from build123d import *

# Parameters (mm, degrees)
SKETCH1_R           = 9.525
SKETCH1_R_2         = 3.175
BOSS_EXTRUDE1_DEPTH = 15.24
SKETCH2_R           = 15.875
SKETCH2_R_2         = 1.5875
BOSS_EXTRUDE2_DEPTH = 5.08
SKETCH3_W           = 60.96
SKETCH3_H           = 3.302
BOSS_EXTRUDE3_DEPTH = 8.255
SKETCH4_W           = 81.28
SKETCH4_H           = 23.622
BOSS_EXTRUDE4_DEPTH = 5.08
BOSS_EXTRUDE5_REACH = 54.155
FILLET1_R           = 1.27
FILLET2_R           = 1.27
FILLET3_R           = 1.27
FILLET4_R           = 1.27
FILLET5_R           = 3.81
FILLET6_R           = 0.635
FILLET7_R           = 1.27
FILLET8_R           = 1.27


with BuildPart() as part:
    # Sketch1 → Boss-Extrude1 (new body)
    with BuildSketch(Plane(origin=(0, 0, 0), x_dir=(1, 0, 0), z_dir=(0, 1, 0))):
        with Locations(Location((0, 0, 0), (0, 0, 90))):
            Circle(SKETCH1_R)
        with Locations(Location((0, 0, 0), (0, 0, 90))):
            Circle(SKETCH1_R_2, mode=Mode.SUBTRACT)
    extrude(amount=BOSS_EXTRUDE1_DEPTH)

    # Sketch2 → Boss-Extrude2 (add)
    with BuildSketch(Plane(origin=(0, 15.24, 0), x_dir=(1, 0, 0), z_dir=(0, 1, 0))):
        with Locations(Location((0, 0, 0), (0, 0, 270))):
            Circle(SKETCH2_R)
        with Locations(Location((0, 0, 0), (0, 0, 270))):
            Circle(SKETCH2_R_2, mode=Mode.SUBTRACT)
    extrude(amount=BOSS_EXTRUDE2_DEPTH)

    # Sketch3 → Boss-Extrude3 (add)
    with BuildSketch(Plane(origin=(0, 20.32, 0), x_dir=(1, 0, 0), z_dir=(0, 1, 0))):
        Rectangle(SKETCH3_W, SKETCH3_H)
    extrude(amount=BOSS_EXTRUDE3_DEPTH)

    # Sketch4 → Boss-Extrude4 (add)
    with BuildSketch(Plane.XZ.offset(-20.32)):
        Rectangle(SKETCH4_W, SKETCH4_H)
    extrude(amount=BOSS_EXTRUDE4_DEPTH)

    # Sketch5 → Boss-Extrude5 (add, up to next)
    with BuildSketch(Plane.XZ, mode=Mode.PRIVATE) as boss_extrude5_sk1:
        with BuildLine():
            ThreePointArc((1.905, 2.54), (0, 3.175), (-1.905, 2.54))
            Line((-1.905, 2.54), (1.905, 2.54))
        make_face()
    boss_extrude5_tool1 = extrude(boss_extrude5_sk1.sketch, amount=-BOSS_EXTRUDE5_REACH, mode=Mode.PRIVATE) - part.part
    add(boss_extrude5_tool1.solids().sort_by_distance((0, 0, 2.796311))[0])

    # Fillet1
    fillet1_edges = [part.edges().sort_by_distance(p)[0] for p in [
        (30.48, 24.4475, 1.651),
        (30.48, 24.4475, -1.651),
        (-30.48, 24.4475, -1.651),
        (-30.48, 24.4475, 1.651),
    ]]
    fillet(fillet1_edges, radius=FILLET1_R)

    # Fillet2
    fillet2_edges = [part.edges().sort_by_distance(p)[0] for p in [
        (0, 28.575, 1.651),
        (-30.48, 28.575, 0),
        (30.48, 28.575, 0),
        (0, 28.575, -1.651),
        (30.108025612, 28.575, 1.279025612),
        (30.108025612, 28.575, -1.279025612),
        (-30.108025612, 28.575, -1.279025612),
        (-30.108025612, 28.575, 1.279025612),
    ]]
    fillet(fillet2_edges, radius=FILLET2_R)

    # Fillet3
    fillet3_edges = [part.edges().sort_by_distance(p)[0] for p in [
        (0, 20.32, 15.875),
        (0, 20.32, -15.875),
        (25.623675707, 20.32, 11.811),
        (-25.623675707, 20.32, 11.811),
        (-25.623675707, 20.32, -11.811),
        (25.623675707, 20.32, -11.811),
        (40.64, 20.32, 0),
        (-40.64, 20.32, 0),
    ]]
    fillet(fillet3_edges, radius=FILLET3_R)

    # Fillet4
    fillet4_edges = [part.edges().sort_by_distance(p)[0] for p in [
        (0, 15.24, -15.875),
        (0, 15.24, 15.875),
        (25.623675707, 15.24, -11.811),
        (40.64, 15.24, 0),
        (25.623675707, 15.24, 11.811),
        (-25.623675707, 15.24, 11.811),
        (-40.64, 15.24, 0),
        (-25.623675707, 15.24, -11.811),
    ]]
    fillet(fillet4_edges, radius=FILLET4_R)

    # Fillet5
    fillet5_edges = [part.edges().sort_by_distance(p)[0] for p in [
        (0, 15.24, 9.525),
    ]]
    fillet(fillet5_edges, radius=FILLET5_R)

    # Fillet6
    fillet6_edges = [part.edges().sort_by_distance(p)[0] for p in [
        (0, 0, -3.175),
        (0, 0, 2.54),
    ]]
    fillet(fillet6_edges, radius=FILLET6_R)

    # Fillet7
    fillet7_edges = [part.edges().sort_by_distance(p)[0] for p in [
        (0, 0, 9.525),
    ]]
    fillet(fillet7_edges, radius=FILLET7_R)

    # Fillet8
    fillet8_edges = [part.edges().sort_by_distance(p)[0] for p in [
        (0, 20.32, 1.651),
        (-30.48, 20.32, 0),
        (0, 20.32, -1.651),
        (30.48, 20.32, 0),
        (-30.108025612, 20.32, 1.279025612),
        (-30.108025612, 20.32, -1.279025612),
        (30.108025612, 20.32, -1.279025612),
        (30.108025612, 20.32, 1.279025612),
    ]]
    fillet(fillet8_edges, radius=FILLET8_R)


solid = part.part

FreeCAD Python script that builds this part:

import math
import FreeCAD as App
import Part
import Sketcher
from FreeCAD import Vector
Q = App.Units.Quantity


def edges_at(feature, points):
    """Names of the edges that pass closest to the given points."""
    edges = feature.Shape.Edges
    near = lambda p: min(range(len(edges)), key=lambda i: edges[i].distToShape(Part.Vertex(*p))[0])
    return sorted({f"Edge{near(p) + 1}" for p in points})


def add_polygon(sketch, points):
    """Adds a closed chain of lines whose ends are joined by coincident constraints."""
    first, n = sketch.GeometryCount, len(points)
    for a, b in zip(points, points[1:] + points[:1]):
        sketch.addGeometry(Part.LineSegment(App.Vector(*a, 0), App.Vector(*b, 0)), False)
    for i in range(n):
        sketch.addConstraint(Sketcher.Constraint("Coincident", first + i, 2, first + (i + 1) % n, 1))

doc = App.newDocument("Part")
body = doc.addObject("PartDesign::Body", "Body")

# Sketch on XZ plane
sketch1 = doc.addObject("Sketcher::SketchObject", "Sketch")
body.addObject(sketch1)
sketch1.AttachmentSupport = (doc.XZ_Plane, [""])
sketch1.MapMode = "FlatFace"
sketch1.addGeometry([
    Part.Circle(Vector(0, 0, 0), Vector(0, 0, 1), 9.525),
    Part.Circle(Vector(0, 0, 0), Vector(0, 0, 1), 3.175),
], False)
sketch1.addConstraint([
    Sketcher.Constraint("Coincident", 0, 3, -1, 1),
    Sketcher.Constraint("Coincident", 1, 3, -1, 1),
    Sketcher.Constraint("Diameter", 0, Q("0.75 in")),
    Sketcher.Constraint("Diameter", 1, Q("0.25 in")),
])
pad1 = doc.addObject("PartDesign::Pad", "Pad")
body.addObject(pad1)
pad1.Profile = sketch1
pad1.Length = Q("0.6 in")
pad1.Reversed = True

# Sketch on XZ plane
sketch2 = doc.addObject("Sketcher::SketchObject", "Sketch001")
body.addObject(sketch2)
sketch2.AttachmentSupport = (doc.XZ_Plane, [""])
sketch2.MapMode = "FlatFace"
sketch2.AttachmentOffset = App.Placement(Vector(0, 0, -0.6 * 25.4), App.Rotation())
sketch2.addGeometry([
    Part.Circle(Vector(0, 0, 0), Vector(0, 0, 1), 15.875),
    Part.Circle(Vector(0, 0, 0), Vector(0, 0, 1), 1.5875),
], False)
sketch2.addConstraint([
    Sketcher.Constraint("Coincident", 0, 3, -1, 1),
    Sketcher.Constraint("Coincident", 1, 3, -1, 1),
    Sketcher.Constraint("Diameter", 0, Q("1.25 in")),
    Sketcher.Constraint("Diameter", 1, Q("0.125 in")),
])
pad2 = doc.addObject("PartDesign::Pad", "Pad001")
body.addObject(pad2)
pad2.Profile = sketch2
pad2.Length = Q("0.2 in")
pad2.Reversed = True

# Sketch on XZ plane
sketch3 = doc.addObject("Sketcher::SketchObject", "Sketch002")
body.addObject(sketch3)
sketch3.AttachmentSupport = (doc.XZ_Plane, [""])
sketch3.MapMode = "FlatFace"
sketch3.AttachmentOffset = App.Placement(Vector(0, 0, -0.8 * 25.4), App.Rotation())
add_polygon(sketch3, [(-30.48, -1.651), (-30.48, 1.651), (30.48, 1.651), (30.48, -1.651)])  # lines 0-3
sketch3.addConstraint([
    Sketcher.Constraint("Vertical", 0),
    Sketcher.Constraint("Horizontal", 1),
    Sketcher.Constraint("Vertical", 2),
    Sketcher.Constraint("Horizontal", 3),
    Sketcher.Constraint("Symmetric", 0, 2, 2, 2, -1, 1),
    Sketcher.Constraint("DistanceX", 1, 1, 1, 2, Q("2.4 in")),
    Sketcher.Constraint("DistanceY", 0, 1, 0, 2, Q("0.13 in")),
])
pad3 = doc.addObject("PartDesign::Pad", "Pad002")
body.addObject(pad3)
pad3.Profile = sketch3
pad3.Length = Q("0.325 in")
pad3.Reversed = True

# Sketch on XZ plane
sketch4 = doc.addObject("Sketcher::SketchObject", "Sketch003")
body.addObject(sketch4)
sketch4.AttachmentSupport = (doc.XZ_Plane, [""])
sketch4.MapMode = "FlatFace"
sketch4.AttachmentOffset = App.Placement(Vector(0, 0, -0.8 * 25.4), App.Rotation())
add_polygon(sketch4, [(-40.64, 11.811), (-40.64, -11.811), (40.64, -11.811), (40.64, 11.811)])  # lines 0-3
sketch4.addConstraint([
    Sketcher.Constraint("Vertical", 0),
    Sketcher.Constraint("Horizontal", 1),
    Sketcher.Constraint("Vertical", 2),
    Sketcher.Constraint("Horizontal", 3),
    Sketcher.Constraint("Symmetric", 0, 2, 2, 2, -1, 1),
    Sketcher.Constraint("DistanceX", 1, 1, 1, 2, Q("3.2 in")),
    Sketcher.Constraint("DistanceY", 0, 2, 0, 1, Q("0.93 in")),
])
pad4 = doc.addObject("PartDesign::Pad", "Pad003")
body.addObject(pad4)
pad4.Profile = sketch4
pad4.Length = Q("0.2 in")

# Sketch on XZ plane
sketch5 = doc.addObject("Sketcher::SketchObject", "Sketch004")
body.addObject(sketch5)
sketch5.AttachmentSupport = (doc.XZ_Plane, [""])
sketch5.MapMode = "FlatFace"
sketch5.addGeometry([
    Part.ArcOfCircle(Part.Circle(Vector(0, 0, 0), Vector(0, 0, 1), 3.175), math.radians(53.130102), math.radians(126.869898)),
    Part.LineSegment(Vector(-1.905, 2.54, 0), Vector(1.905, 2.54, 0)),
], False)
sketch5.addConstraint([
    Sketcher.Constraint("Coincident", 0, 1, 1, 2),
    Sketcher.Constraint("Coincident", 1, 1, 0, 2),
    Sketcher.Constraint("Horizontal", 1),
    Sketcher.Constraint("Coincident", 0, 3, -1, 1),
    Sketcher.Constraint("Radius", 0, Q("0.125 in")),
    Sketcher.Constraint("DistanceX", 1, 1, 1, 2, Q("0.15 in")),
])
pad5 = doc.addObject("PartDesign::Pad", "Pad004")
body.addObject(pad5)
pad5.Profile = sketch5
pad5.Type = "UpToFirst"
pad5.Reversed = True
doc.recompute()

fillet = doc.addObject("PartDesign::Fillet", "Fillet")
body.addObject(fillet)
fillet.Base = (pad5, edges_at(pad5, [
    (30.48, 24.448, 1.651),
    (30.48, 24.448, -1.651),
    (-30.48, 24.448, -1.651),
    (-30.48, 24.448, 1.651),
]))
fillet.Radius = Q("0.05 in")
doc.recompute()

fillet2 = doc.addObject("PartDesign::Fillet", "Fillet001")
body.addObject(fillet2)
fillet2.Base = (fillet, edges_at(fillet, [
    (0, 28.575, 1.651),
    (-30.48, 28.575, 0),
    (30.48, 28.575, 0),
    (0, 28.575, -1.651),
    (30.108, 28.575, 1.279),
    (30.108, 28.575, -1.279),
    (-30.108, 28.575, -1.279),
    (-30.108, 28.575, 1.279),
]))
fillet2.Radius = Q("0.05 in")
doc.recompute()

fillet3 = doc.addObject("PartDesign::Fillet", "Fillet002")
body.addObject(fillet3)
fillet3.Base = (fillet2, edges_at(fillet2, [
    (0, 20.32, 15.875),
    (0, 20.32, -15.875),
    (25.624, 20.32, 11.811),
    (-25.624, 20.32, 11.811),
    (-25.624, 20.32, -11.811),
    (25.624, 20.32, -11.811),
    (40.64, 20.32, 0),
    (-40.64, 20.32, 0),
]))
fillet3.Radius = Q("0.05 in")
doc.recompute()

fillet4 = doc.addObject("PartDesign::Fillet", "Fillet003")
body.addObject(fillet4)
fillet4.Base = (fillet3, edges_at(fillet3, [
    (0, 15.24, -15.875),
    (0, 15.24, 15.875),
    (25.624, 15.24, -11.811),
    (40.64, 15.24, 0),
    (25.624, 15.24, 11.811),
    (-25.624, 15.24, 11.811),
    (-40.64, 15.24, 0),
    (-25.624, 15.24, -11.811),
]))
fillet4.Radius = Q("0.05 in")
doc.recompute()

fillet5 = doc.addObject("PartDesign::Fillet", "Fillet004")
body.addObject(fillet5)
fillet5.Base = (fillet4, edges_at(fillet4, [(0, 15.24, 9.525)]))
fillet5.Radius = Q("0.15 in")
doc.recompute()

fillet6 = doc.addObject("PartDesign::Fillet", "Fillet005")
body.addObject(fillet6)
fillet6.Base = (fillet5, edges_at(fillet5, [(0, 0, -3.175), (0, 0, 2.54)]))
fillet6.Radius = Q("0.025 in")
doc.recompute()

fillet7 = doc.addObject("PartDesign::Fillet", "Fillet006")
body.addObject(fillet7)
fillet7.Base = (fillet6, edges_at(fillet6, [(0, 0, 9.525)]))
fillet7.Radius = Q("0.05 in")
doc.recompute()

fillet8 = doc.addObject("PartDesign::Fillet", "Fillet007")
body.addObject(fillet8)
fillet8.Base = (fillet7, edges_at(fillet7, [
    (0, 20.32, 1.651),
    (-30.48, 20.32, 0),
    (0, 20.32, -1.651),
    (30.48, 20.32, 0),
    (-30.108, 20.32, 1.279),
    (-30.108, 20.32, -1.279),
    (30.108, 20.32, -1.279),
    (30.108, 20.32, 1.279),
]))
fillet8.Radius = Q("0.05 in")

doc.recompute()
